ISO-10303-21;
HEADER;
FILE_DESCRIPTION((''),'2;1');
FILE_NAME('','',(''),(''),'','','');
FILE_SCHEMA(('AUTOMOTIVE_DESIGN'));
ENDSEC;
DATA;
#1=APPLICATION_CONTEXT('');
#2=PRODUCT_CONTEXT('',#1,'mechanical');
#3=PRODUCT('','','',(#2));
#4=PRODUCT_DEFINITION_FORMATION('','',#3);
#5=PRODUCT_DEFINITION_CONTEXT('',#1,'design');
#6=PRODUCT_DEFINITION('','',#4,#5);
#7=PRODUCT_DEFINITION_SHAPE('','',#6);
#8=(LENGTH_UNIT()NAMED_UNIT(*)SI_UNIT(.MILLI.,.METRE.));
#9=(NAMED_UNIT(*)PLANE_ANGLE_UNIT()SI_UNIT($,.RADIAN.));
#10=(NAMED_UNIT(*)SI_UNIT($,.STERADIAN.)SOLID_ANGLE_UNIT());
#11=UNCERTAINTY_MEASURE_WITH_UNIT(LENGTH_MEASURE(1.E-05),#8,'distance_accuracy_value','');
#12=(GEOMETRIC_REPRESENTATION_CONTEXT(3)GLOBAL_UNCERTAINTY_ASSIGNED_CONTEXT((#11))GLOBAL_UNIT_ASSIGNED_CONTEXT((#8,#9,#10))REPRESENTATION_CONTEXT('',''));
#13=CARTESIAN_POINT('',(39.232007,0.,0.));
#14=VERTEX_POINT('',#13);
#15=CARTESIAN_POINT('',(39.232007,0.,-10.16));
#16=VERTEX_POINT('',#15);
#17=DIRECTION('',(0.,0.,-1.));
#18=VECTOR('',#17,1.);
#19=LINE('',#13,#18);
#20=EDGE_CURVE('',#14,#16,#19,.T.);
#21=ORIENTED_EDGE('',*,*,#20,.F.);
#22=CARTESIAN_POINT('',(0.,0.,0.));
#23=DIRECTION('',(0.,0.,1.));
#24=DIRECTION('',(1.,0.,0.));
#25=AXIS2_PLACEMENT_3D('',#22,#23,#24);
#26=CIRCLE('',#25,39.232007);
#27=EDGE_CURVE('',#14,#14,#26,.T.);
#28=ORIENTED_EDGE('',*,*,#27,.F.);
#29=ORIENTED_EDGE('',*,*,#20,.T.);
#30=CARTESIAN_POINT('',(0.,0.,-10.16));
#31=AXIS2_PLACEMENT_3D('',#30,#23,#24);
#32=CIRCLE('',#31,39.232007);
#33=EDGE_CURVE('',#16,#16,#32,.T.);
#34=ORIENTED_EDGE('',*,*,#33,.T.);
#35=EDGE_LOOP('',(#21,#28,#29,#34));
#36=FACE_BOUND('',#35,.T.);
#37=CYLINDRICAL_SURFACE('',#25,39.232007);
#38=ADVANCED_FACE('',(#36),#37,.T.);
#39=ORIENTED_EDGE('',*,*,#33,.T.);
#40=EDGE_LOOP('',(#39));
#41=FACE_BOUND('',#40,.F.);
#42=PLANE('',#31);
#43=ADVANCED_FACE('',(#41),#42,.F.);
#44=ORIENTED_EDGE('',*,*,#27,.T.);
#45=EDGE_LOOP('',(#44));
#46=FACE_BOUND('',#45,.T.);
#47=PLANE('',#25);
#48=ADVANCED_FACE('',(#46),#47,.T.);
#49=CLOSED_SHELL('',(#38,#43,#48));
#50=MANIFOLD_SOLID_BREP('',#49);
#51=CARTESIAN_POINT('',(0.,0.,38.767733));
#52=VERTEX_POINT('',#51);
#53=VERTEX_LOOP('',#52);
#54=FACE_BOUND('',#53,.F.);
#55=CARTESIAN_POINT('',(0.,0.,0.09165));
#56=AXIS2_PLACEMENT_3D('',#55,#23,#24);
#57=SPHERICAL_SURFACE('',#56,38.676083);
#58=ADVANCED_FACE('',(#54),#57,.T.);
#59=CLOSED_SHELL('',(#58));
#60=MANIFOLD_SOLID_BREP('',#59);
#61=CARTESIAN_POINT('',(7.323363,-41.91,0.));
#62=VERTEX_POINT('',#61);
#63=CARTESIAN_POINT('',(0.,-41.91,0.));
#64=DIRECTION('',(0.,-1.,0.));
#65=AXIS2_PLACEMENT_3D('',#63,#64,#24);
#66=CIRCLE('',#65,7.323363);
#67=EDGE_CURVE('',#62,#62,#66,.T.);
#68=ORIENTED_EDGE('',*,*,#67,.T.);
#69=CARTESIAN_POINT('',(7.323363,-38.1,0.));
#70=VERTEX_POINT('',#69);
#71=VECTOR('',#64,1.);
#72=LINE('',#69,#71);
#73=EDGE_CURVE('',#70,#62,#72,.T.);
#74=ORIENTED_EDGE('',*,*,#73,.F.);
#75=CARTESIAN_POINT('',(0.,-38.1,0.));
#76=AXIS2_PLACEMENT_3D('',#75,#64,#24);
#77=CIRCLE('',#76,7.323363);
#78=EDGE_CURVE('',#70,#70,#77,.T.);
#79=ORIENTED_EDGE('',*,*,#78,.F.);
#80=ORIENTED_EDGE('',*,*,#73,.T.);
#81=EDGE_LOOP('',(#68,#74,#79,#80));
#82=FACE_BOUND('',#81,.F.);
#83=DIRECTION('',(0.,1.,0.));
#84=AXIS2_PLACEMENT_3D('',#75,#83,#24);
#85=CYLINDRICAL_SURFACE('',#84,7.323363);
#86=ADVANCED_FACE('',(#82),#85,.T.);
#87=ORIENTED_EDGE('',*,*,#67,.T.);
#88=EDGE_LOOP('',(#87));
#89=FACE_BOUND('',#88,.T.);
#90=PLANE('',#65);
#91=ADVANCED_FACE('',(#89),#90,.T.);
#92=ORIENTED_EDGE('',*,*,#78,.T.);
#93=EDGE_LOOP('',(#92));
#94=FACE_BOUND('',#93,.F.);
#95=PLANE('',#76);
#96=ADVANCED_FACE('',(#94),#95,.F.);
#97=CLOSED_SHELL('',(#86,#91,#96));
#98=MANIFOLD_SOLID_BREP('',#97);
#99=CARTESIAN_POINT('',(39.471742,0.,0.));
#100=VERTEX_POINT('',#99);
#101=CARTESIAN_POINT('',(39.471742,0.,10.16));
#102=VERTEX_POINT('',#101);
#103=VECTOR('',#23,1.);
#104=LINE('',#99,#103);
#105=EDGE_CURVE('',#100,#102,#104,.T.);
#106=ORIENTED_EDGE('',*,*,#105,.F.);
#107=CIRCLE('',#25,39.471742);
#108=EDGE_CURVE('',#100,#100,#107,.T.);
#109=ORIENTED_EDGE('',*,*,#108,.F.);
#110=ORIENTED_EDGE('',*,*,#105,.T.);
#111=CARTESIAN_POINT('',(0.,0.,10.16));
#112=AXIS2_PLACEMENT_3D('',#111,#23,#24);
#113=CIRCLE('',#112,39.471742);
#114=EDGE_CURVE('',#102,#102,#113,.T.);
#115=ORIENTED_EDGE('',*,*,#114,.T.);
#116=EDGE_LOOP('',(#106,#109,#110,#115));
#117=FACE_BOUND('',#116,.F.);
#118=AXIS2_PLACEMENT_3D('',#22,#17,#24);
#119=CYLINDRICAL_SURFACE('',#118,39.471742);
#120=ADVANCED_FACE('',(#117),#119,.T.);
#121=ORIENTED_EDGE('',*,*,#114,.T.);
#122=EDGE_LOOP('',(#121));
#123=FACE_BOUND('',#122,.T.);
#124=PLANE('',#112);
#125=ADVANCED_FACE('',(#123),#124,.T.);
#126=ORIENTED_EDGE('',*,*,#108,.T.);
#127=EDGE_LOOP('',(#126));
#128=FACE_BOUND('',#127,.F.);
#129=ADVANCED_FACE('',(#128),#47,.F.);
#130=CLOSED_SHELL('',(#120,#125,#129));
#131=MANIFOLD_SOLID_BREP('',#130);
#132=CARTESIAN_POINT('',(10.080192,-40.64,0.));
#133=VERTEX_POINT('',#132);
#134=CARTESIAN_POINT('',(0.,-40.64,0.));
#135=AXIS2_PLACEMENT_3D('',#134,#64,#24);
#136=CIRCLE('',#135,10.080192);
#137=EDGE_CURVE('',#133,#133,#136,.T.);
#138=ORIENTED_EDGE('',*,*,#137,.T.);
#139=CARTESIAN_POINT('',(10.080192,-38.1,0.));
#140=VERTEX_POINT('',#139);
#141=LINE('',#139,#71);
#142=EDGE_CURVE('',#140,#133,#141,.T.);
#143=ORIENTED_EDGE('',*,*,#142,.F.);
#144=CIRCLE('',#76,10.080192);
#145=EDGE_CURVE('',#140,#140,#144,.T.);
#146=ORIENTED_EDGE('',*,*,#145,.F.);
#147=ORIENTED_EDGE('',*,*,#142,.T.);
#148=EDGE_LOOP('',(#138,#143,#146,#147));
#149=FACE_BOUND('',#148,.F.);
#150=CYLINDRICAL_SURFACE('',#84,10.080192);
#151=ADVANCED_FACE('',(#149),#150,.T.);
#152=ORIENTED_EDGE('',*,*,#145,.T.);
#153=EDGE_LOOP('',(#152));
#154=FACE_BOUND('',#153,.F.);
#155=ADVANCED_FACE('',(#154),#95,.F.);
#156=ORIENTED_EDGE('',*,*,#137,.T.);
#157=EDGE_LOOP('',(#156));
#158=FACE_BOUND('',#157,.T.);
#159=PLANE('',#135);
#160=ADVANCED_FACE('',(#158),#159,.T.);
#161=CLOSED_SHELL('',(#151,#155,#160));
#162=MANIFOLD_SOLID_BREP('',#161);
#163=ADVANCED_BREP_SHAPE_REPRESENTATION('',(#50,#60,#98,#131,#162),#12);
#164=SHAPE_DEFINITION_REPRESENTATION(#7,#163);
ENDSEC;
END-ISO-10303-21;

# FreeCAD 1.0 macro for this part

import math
import FreeCAD as App
import Part
import Sketcher
Q = App.Units.Quantity

doc = App.newDocument("Part")
body = doc.addObject("PartDesign::Body", "Body")

# Sketch on XZ plane
sketch1 = body.newObject("Sketcher::SketchObject", "Sketch")
sketch1.AttachmentSupport = (doc.getObject("XZ_Plane"), [""])
sketch1.MapMode = "FlatFace"
sketch1.addGeometry(Part.LineSegment(App.Vector(0, 39, 0), App.Vector(0, -39, 0)), False)
sketch1.addGeometry(Part.ArcOfCircle(Part.Circle(App.Vector(0, 0, 0), App.Vector(0, 0, 1), 39), math.radians(-90), math.radians(90)), False)
sketch1.addConstraint(Sketcher.Constraint("Coincident", 0, 1, 1, 2))
sketch1.addConstraint(Sketcher.Constraint("Coincident", 1, 1, 0, 2))
sketch1.addConstraint(Sketcher.Constraint("Vertical", 0))
sketch1.addConstraint(Sketcher.Constraint("PointOnObject", 1, 3, -2))
sketch1.addConstraint(Sketcher.Constraint("PointOnObject", 0, 1, -2))
sketch1.addConstraint(Sketcher.Constraint("Radius", 1, 38.676083))
sketch1.addConstraint(Sketcher.Constraint("DistanceY", -1, 1, 1, 3, 0.09165))
revolution = body.newObject("PartDesign::Revolution", "Revolution")
revolution.Profile = sketch1
revolution.ReferenceAxis = (sketch1, ["V_Axis"])
revolution.Angle = 360
body2 = doc.addObject("PartDesign::Body", "Body001")

# Sketch on XZ plane
sketch2 = body2.newObject("Sketcher::SketchObject", "Sketch001")
sketch2.AttachmentSupport = (doc.getObject("XZ_Plane001"), [""])
sketch2.MapMode = "FlatFace"
sketch2.AttachmentOffset = App.Placement(App.Vector(0, 0, 1.5 * 25.4), App.Rotation())
sketch2.addGeometry(Part.Circle(App.Vector(0, 0, 0), App.Vector(0, 0, 1), 7), False)
sketch2.addConstraint(Sketcher.Constraint("Coincident", 0, 3, -1, 1))
sketch2.addConstraint(Sketcher.Constraint("Diameter", 0, 14.646726))
pad1 = body2.newObject("PartDesign::Pad", "Pad")
pad1.Profile = sketch2
pad1.Length = Q("0.15 in")
body3 = doc.addObject("PartDesign::Body", "Body002")

# Sketch on XZ plane
sketch3 = body3.newObject("Sketcher::SketchObject", "Sketch002")
sketch3.AttachmentSupport = (doc.getObject("XZ_Plane002"), [""])
sketch3.MapMode = "FlatFace"
sketch3.AttachmentOffset = App.Placement(App.Vector(0, 0, 1.5 * 25.4), App.Rotation())
sketch3.addGeometry(Part.Circle(App.Vector(0, 0, 0), App.Vector(0, 0, 1), 10), False)
sketch3.addConstraint(Sketcher.Constraint("Coincident", 0, 3, -1, 1))
sketch3.addConstraint(Sketcher.Constraint("Diameter", 0, 20.160384))
pad2 = body3.newObject("PartDesign::Pad", "Pad001")
pad2.Profile = sketch3
pad2.Length = Q("0.1 in")
body4 = doc.addObject("PartDesign::Body", "Body003")

# Sketch on XY plane
sketch4 = body4.newObject("Sketcher::SketchObject", "Sketch003")
sketch4.AttachmentSupport = (doc.getObject("XY_Plane003"), [""])
sketch4.MapMode = "FlatFace"
sketch4.addGeometry(Part.Circle(App.Vector(0, 0, 0), App.Vector(0, 0, 1), 39), False)
sketch4.addConstraint(Sketcher.Constraint("Coincident", 0, 3, -1, 1))
sketch4.addConstraint(Sketcher.Constraint("Diameter", 0, 78.943484))
pad3 = body4.newObject("PartDesign::Pad", "Pad002")
pad3.Profile = sketch4
pad3.Length = Q("0.4 in")
body5 = doc.addObject("PartDesign::Body", "Body004")

# Sketch on XY plane
sketch5 = body5.newObject("Sketcher::SketchObject", "Sketch004")
sketch5.AttachmentSupport = (doc.getObject("XY_Plane004"), [""])
sketch5.MapMode = "FlatFace"
sketch5.addGeometry(Part.Circle(App.Vector(0, 0, 0), App.Vector(0, 0, 1), 39), False)
sketch5.addConstraint(Sketcher.Constraint("Coincident", 0, 3, -1, 1))
sketch5.addConstraint(Sketcher.Constraint("Diameter", 0, 78.464014))
pad4 = body5.newObject("PartDesign::Pad", "Pad003")
pad4.Profile = sketch5
pad4.Length = Q("0.4 in")
pad4.Reversed = True

doc.recompute()
